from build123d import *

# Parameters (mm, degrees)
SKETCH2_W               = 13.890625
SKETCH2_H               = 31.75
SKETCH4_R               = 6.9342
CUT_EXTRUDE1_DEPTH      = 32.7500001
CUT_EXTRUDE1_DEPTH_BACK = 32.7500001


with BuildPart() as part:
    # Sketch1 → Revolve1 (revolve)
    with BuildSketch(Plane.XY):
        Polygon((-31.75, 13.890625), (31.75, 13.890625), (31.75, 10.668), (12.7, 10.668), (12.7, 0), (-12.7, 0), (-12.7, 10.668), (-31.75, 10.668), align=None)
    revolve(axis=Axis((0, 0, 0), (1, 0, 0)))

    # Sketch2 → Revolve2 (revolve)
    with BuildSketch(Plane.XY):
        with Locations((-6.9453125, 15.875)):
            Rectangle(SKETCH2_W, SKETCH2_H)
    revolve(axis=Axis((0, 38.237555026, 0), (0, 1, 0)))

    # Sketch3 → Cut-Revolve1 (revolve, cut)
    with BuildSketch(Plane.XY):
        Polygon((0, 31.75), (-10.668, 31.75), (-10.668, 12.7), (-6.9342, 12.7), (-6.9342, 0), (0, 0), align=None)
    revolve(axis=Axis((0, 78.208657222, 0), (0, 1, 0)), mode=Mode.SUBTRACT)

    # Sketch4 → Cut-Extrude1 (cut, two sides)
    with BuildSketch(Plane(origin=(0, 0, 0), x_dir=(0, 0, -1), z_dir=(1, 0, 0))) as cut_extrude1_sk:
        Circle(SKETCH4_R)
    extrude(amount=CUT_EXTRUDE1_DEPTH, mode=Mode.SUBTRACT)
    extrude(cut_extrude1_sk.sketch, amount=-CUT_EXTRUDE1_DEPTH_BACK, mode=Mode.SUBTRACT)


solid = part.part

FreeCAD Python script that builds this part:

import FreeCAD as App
import Part
import Sketcher

V = App.Vector
Q = App.Units.Quantity

doc = App.newDocument("Part")
body = doc.addObject("PartDesign::Body", "Body")

# Sketch on XY plane
sketch1 = body.newObject("Sketcher::SketchObject", "Sketch")
sketch1.AttachmentSupport = (doc.getObject("XY_Plane"), [""])
sketch1.MapMode = "FlatFace"
sketch1.addGeometry([
    Part.LineSegment(V(31.75, 13.890625, 0), V(-31.75, 13.890625, 0)),  # 0
    Part.LineSegment(V(-31.75, 13.890625, 0), V(-31.75, 10.668, 0)),  # 1
    Part.LineSegment(V(-31.75, 10.668, 0), V(-12.7, 10.668, 0)),  # 2
    Part.LineSegment(V(-12.7, 10.668, 0), V(-12.7, 0, 0)),  # 3
    Part.LineSegment(V(-12.7, 0, 0), V(12.7, 0, 0)),  # 4
    Part.LineSegment(V(12.7, 0, 0), V(12.7, 10.668, 0)),  # 5
    Part.LineSegment(V(12.7, 10.668, 0), V(31.75, 10.668, 0)),  # 6
    Part.LineSegment(V(31.75, 10.668, 0), V(31.75, 13.890625, 0)),  # 7
], False)
sketch1.addConstraint([
    Sketcher.Constraint("Coincident", 0, 2, 1, 1),
    Sketcher.Constraint("Coincident", 1, 2, 2, 1),
    Sketcher.Constraint("Coincident", 2, 2, 3, 1),
    Sketcher.Constraint("Coincident", 3, 2, 4, 1),
    Sketcher.Constraint("Coincident", 4, 2, 5, 1),
    Sketcher.Constraint("Coincident", 5, 2, 6, 1),
    Sketcher.Constraint("Coincident", 6, 2, 7, 1),
    Sketcher.Constraint("Coincident", 7, 2, 0, 1),
    Sketcher.Constraint("Horizontal", 0),
    Sketcher.Constraint("Vertical", 1),
    Sketcher.Constraint("Horizontal", 2),
    Sketcher.Constraint("Vertical", 3),
    Sketcher.Constraint("Horizontal", 4),
    Sketcher.Constraint("Vertical", 5),
    Sketcher.Constraint("Horizontal", 6),
    Sketcher.Constraint("Vertical", 7),
    Sketcher.Constraint("Symmetric", 3, 2, 4, 2, -1, 1),
    Sketcher.Constraint("Symmetric", 1, 2, 6, 2, -2),
    Sketcher.Constraint("DistanceX", 4, 1, 4, 2, Q("1 in")),
    Sketcher.Constraint("DistanceX", 0, 2, 0, 1, Q("2.5 in")),
    Sketcher.Constraint("DistanceY", 3, 2, 3, 1, Q("0.42 in")),
    Sketcher.Constraint("DistanceY", -1, 1, 0, 2, Q("0.546875 in")),
])
revolution = body.newObject("PartDesign::Revolution", "Revolution")
revolution.Profile = sketch1
revolution.ReferenceAxis = (sketch1, ["H_Axis"])
revolution.Angle = 360

# Sketch on XY plane
sketch2 = body.newObject("Sketcher::SketchObject", "Sketch001")
sketch2.AttachmentSupport = (doc.getObject("XY_Plane"), [""])
sketch2.MapMode = "FlatFace"
sketch2.addGeometry([
    Part.LineSegment(V(-13.890625, 31.75, 0), V(-13.890625, 0, 0)),
    Part.LineSegment(V(-13.890625, 0, 0), V(0, 0, 0)),
    Part.LineSegment(V(0, 0, 0), V(0, 31.75, 0)),
    Part.LineSegment(V(0, 31.75, 0), V(-13.890625, 31.75, 0)),
], False)
sketch2.addConstraint([
    Sketcher.Constraint("Coincident", 0, 2, 1, 1),
    Sketcher.Constraint("Coincident", 1, 2, 2, 1),
    Sketcher.Constraint("Coincident", 2, 2, 3, 1),
    Sketcher.Constraint("Coincident", 3, 2, 0, 1),
    Sketcher.Constraint("Vertical", 0),
    Sketcher.Constraint("Horizontal", 1),
    Sketcher.Constraint("Vertical", 2),
    Sketcher.Constraint("Horizontal", 3),
    Sketcher.Constraint("Coincident", 1, 2, -1, 1),
    Sketcher.Constraint("DistanceY", 0, 2, 0, 1, Q("1.25 in")),
    Sketcher.Constraint("DistanceX", 1, 1, 1, 2, Q("0.546875 in")),
])
revolution2 = body.newObject("PartDesign::Revolution", "Revolution001")
revolution2.Profile = sketch2
revolution2.ReferenceAxis = (sketch2, ["V_Axis"])
revolution2.Angle = 360

# Sketch on XY plane
sketch3 = body.newObject("Sketcher::SketchObject", "Sketch002")
sketch3.AttachmentSupport = (doc.getObject("XY_Plane"), [""])
sketch3.MapMode = "FlatFace"
sketch3.addGeometry([
    Part.LineSegment(V(0, 31.75, 0), V(-10.668, 31.75, 0)),  # 0
    Part.LineSegment(V(-10.668, 31.75, 0), V(-10.668, 12.7, 0)),  # 1
    Part.LineSegment(V(-10.668, 12.7, 0), V(-6.9342, 12.7, 0)),  # 2
    Part.LineSegment(V(-6.9342, 12.7, 0), V(-6.9342, 0, 0)),  # 3
    Part.LineSegment(V(-6.9342, 0, 0), V(0, 0, 0)),  # 4
    Part.LineSegment(V(0, 0, 0), V(0, 31.75, 0)),  # 5
], False)
sketch3.addConstraint([
    Sketcher.Constraint("Coincident", 0, 2, 1, 1),
    Sketcher.Constraint("Coincident", 1, 2, 2, 1),
    Sketcher.Constraint("Coincident", 2, 2, 3, 1),
    Sketcher.Constraint("Coincident", 3, 2, 4, 1),
    Sketcher.Constraint("Coincident", 4, 2, 5, 1),
    Sketcher.Constraint("Coincident", 5, 2, 0, 1),
    Sketcher.Constraint("Horizontal", 0),
    Sketcher.Constraint("Vertical", 1),
    Sketcher.Constraint("Horizontal", 2),
    Sketcher.Constraint("Vertical", 3),
    Sketcher.Constraint("Horizontal", 4),
    Sketcher.Constraint("Vertical", 5),
    Sketcher.Constraint("Coincident", 4, 2, -1, 1),
    Sketcher.Constraint("DistanceY", 3, 2, 3, 1, Q("0.5 in")),
    Sketcher.Constraint("DistanceX", 0, 2, 0, 1, Q("0.42 in")),
    Sketcher.Constraint("DistanceY", 1, 2, 1, 1, Q("0.75 in")),
    Sketcher.Constraint("DistanceX", 2, 1, 2, 2, Q("0.147 in")),
])
groove = body.newObject("PartDesign::Groove", "Groove")
groove.Profile = sketch3
groove.ReferenceAxis = (sketch3, ["V_Axis"])
groove.Angle = 360

# Sketch on YZ plane
sketch4 = body.newObject("Sketcher::SketchObject", "Sketch003")
sketch4.AttachmentSupport = (doc.getObject("YZ_Plane"), [""])
sketch4.MapMode = "FlatFace"
sketch4.addGeometry(Part.Circle(V(0, 0, 0), V(0, 0, 1), 6.9342), False)
sketch4.addConstraint([
    Sketcher.Constraint("Coincident", 0, 3, -1, 1),
    Sketcher.Constraint("Diameter", 0, Q("0.546 in")),
])
pocket1 = body.newObject("PartDesign::Pocket", "Pocket")
pocket1.Profile = sketch4
pocket1.Type = "ThroughAll"
pocket1.Midplane = True

doc.recompute()
